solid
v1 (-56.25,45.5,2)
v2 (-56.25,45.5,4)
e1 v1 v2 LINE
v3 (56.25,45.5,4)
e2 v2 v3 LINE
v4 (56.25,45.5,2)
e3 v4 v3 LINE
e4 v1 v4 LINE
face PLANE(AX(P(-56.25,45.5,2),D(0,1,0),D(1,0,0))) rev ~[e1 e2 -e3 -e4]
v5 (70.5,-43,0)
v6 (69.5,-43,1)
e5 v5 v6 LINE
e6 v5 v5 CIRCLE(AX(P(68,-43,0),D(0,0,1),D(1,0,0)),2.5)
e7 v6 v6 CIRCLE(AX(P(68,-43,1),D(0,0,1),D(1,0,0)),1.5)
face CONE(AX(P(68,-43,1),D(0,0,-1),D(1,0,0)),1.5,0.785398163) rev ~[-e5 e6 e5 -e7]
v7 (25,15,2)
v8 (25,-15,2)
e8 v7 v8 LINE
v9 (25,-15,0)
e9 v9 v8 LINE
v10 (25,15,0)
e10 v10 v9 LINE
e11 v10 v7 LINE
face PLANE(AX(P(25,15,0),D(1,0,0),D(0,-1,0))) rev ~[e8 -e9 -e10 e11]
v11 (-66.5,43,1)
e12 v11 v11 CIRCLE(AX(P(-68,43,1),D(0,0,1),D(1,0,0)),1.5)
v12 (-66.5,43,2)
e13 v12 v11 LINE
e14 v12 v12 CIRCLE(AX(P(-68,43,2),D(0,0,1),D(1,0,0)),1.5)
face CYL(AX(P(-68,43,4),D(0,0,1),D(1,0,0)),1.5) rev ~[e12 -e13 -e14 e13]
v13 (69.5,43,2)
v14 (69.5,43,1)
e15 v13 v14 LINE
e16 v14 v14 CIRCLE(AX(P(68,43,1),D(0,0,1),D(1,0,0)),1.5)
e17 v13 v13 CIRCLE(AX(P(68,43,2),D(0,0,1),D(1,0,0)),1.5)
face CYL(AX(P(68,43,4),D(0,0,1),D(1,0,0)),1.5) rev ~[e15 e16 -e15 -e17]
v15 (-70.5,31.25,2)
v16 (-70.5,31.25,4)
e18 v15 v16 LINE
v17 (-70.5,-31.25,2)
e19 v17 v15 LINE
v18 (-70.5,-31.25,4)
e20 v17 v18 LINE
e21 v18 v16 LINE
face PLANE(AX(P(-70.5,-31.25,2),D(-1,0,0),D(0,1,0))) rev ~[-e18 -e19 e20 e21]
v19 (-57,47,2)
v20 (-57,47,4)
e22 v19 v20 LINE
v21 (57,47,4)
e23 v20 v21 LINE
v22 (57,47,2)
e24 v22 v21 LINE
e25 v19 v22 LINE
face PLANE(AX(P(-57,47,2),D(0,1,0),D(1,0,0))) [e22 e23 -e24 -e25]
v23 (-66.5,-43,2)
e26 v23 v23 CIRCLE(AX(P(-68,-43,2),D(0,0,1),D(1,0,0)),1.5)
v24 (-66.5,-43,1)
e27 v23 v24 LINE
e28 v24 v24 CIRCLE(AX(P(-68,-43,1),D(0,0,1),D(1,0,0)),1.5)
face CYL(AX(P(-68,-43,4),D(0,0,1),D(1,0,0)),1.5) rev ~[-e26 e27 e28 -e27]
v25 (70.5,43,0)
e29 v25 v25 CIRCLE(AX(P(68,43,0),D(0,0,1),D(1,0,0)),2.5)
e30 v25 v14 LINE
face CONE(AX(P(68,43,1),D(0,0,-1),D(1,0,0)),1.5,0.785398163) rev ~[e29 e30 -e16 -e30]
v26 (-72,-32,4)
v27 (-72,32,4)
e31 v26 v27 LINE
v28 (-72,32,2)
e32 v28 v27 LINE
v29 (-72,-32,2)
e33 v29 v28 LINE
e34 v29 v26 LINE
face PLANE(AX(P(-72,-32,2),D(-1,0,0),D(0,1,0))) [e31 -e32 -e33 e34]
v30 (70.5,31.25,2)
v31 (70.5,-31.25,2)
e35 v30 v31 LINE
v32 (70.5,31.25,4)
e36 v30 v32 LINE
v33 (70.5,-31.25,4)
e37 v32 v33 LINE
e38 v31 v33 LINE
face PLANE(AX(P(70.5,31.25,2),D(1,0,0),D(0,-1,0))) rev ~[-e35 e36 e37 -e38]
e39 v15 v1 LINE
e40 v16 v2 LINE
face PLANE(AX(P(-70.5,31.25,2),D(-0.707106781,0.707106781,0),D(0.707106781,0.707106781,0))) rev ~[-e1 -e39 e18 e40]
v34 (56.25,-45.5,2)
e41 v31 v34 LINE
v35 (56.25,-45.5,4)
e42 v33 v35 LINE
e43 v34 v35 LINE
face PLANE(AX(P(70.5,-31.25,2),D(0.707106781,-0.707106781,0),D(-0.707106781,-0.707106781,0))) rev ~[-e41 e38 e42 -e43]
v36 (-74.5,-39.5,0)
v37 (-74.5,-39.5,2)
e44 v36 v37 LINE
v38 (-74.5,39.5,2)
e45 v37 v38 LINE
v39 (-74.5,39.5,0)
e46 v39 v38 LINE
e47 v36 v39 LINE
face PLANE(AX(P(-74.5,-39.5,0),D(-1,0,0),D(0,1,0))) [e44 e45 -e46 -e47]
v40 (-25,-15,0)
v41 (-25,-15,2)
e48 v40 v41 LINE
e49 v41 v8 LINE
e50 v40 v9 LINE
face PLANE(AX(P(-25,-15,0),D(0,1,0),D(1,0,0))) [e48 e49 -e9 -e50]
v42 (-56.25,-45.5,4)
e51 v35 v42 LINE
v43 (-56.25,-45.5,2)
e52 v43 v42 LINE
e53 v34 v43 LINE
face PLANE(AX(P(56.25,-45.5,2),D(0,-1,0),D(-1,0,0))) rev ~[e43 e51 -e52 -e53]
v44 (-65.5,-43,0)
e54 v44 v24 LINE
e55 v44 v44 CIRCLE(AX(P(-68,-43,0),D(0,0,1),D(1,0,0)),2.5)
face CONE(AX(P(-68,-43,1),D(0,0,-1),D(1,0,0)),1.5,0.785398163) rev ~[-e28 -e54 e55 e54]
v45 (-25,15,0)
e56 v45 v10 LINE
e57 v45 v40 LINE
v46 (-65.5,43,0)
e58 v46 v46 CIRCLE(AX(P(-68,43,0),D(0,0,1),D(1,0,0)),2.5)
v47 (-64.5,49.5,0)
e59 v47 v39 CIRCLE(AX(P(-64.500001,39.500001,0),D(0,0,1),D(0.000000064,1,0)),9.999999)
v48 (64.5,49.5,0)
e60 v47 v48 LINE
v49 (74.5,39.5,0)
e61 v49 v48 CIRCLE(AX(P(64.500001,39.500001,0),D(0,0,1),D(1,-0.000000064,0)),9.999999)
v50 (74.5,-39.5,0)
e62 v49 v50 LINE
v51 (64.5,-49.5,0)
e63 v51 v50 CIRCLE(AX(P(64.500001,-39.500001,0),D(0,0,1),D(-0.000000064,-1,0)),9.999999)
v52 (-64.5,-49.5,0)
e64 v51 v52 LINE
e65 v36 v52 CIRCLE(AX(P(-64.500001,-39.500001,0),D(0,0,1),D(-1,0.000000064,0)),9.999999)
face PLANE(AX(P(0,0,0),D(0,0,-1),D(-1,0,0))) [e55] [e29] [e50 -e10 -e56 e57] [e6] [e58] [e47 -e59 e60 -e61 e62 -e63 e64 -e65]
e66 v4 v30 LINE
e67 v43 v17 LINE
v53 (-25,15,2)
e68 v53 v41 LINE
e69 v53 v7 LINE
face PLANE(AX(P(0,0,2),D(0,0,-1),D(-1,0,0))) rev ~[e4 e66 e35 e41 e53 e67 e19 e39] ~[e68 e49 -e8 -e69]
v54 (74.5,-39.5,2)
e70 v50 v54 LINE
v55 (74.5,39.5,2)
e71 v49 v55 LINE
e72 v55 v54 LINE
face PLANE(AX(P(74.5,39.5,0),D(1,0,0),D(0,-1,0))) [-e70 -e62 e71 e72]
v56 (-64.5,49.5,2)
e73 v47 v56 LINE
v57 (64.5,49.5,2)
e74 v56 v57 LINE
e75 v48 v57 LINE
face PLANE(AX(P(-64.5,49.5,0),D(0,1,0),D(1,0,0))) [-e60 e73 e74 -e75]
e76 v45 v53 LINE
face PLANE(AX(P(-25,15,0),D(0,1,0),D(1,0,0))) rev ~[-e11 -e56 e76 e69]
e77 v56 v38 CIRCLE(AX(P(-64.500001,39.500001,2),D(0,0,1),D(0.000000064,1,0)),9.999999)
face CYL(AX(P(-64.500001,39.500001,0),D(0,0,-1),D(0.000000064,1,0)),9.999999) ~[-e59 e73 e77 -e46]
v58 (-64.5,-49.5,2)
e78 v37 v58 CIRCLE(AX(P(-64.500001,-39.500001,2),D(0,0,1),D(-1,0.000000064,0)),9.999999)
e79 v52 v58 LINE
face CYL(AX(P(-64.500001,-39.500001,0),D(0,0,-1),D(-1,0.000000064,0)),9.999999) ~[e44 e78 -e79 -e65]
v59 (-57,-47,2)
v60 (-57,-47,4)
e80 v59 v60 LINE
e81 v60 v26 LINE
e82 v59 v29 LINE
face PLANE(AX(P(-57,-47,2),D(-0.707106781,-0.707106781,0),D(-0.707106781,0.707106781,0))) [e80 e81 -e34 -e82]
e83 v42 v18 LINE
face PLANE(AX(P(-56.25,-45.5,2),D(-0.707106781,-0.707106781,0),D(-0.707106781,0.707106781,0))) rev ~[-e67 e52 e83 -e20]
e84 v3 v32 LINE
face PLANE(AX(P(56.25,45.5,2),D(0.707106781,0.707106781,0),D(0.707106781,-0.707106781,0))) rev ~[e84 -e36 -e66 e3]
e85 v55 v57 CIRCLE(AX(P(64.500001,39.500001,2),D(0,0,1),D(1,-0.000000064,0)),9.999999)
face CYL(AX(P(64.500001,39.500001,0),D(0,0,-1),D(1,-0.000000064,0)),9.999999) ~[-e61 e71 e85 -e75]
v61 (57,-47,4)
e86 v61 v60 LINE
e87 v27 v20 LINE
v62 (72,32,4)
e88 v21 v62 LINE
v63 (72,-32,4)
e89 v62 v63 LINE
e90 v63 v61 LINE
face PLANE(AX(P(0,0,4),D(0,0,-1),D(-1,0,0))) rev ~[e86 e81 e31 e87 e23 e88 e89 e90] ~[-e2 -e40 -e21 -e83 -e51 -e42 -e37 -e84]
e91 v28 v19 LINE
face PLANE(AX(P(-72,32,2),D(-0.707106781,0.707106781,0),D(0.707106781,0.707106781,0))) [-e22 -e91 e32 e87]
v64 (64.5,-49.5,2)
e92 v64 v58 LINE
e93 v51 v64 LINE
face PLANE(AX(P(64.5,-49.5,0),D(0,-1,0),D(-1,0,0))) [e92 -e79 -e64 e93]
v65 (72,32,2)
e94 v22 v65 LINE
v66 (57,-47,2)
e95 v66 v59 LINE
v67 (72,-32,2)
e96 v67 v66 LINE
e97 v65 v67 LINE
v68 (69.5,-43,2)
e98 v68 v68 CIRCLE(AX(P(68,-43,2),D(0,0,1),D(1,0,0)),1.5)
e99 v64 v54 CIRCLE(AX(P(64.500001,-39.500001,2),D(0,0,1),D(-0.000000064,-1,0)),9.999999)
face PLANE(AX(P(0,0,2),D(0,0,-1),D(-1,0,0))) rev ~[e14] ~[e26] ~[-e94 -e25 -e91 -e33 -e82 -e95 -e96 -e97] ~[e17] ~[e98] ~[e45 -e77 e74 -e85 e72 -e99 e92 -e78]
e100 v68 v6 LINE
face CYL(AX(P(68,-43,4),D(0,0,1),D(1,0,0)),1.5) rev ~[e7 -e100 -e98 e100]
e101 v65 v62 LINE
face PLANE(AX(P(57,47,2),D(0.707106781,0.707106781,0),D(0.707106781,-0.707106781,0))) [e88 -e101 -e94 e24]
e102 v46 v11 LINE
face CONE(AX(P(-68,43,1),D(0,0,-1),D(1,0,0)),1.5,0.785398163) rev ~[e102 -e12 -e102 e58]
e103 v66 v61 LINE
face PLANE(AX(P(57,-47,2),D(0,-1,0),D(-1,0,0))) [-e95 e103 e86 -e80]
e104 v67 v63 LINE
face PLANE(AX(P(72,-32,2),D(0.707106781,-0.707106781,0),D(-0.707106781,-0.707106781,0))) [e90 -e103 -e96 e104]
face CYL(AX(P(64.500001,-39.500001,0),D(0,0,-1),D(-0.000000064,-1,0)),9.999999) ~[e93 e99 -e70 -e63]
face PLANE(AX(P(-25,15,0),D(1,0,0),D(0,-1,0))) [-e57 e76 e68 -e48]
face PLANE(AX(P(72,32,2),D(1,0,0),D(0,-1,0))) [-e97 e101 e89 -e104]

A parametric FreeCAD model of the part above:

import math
import FreeCAD as App
import Part
import Sketcher

V = App.Vector


def edges_at(feature, points):
    """Names of the edges that pass closest to the given points."""
    edges = feature.Shape.Edges
    near = lambda p: min(range(len(edges)), key=lambda i: edges[i].distToShape(Part.Vertex(*p))[0])
    return sorted({f"Edge{near(p) + 1}" for p in points})

doc = App.newDocument("Part")
params = doc.addObject("Spreadsheet::Sheet", "Params")
for row, (alias, value) in enumerate([
    ("sketch1_radius", "9.999999 mm"),
    ("sketch1_width", "129 mm"),
    ("sketch1_height", "79 mm"),
    ("pad1_length", "2 mm"),
    ("sketch2_diameter", "3 mm"),
    ("pocket1_length", "5 mm"),
    ("chamfer_size", "1 mm"),
    ("chamfer2_size", "1 mm"),
    ("chamfer3_size", "1 mm"),
    ("chamfer4_size", "1 mm"),
    ("sketch3_width", "50 mm"),
    ("sketch3_height", "30 mm"),
    ("pocket2_length", "5 mm"),
    ("sketch4_width", "114 mm"),
    ("sketch4_height", "64 mm"),
    ("sketch4_width2", "112.5 mm"),
    ("sketch4_height2", "62.5 mm"),
    ("pad2_length", "2 mm"),
], start=1):
    params.set(f"A{row}", alias)
    params.set(f"B{row}", "=" + value)
    params.setAlias(f"B{row}", alias)

body = doc.addObject("PartDesign::Body", "Body")

sketch1 = doc.addObject("Sketcher::SketchObject", "Sketch")
body.addObject(sketch1)
sketch1.AttachmentSupport = (doc.XY_Plane, [""])
sketch1.MapMode = "FlatFace"
sketch1.addGeometry(Part.LineSegment(V(64, 50, 0), V(-64, 50, 0)), False)
sketch1.addGeometry(Part.ArcOfCircle(Part.Circle(V(-65, 40, 0), V(0, 0, 1), 10), math.radians(90), math.radians(180)), False)
sketch1.addGeometry(Part.LineSegment(V(-74, 40, 0), V(-74, -40, 0)), False)
sketch1.addGeometry(Part.ArcOfCircle(Part.Circle(V(-65, -40, 0), V(0, 0, 1), 10), math.radians(180), math.radians(270)), False)
sketch1.addGeometry(Part.LineSegment(V(-64, -50, 0), V(64, -50, 0)), False)
sketch1.addGeometry(Part.ArcOfCircle(Part.Circle(V(65, -40, 0), V(0, 0, 1), 10), math.radians(-90), math.radians(0)), False)
sketch1.addGeometry(Part.LineSegment(V(74, -40, 0), V(74, 40, 0)), False)
sketch1.addGeometry(Part.ArcOfCircle(Part.Circle(V(65, 40, 0), V(0, 0, 1), 10), math.radians(0), math.radians(90)), False)
sketch1.addConstraint(Sketcher.Constraint("Tangent", 0, 2, 1, 1))
sketch1.addConstraint(Sketcher.Constraint("Tangent", 1, 2, 2, 1))
sketch1.addConstraint(Sketcher.Constraint("Tangent", 2, 2, 3, 1))
sketch1.addConstraint(Sketcher.Constraint("Tangent", 3, 2, 4, 1))
sketch1.addConstraint(Sketcher.Constraint("Tangent", 4, 2, 5, 1))
sketch1.addConstraint(Sketcher.Constraint("Tangent", 5, 2, 6, 1))
sketch1.addConstraint(Sketcher.Constraint("Tangent", 6, 2, 7, 1))
sketch1.addConstraint(Sketcher.Constraint("Tangent", 7, 2, 0, 1))
sketch1.addConstraint(Sketcher.Constraint("Horizontal", 0))
sketch1.addConstraint(Sketcher.Constraint("Vertical", 2))
sketch1.addConstraint(Sketcher.Constraint("Horizontal", 4))
sketch1.addConstraint(Sketcher.Constraint("Vertical", 6))
sketch1.addConstraint(Sketcher.Constraint("Equal", 1, 3))
sketch1.addConstraint(Sketcher.Constraint("Equal", 3, 5))
sketch1.addConstraint(Sketcher.Constraint("Equal", 5, 7))
sketch1.addConstraint(Sketcher.Constraint("Symmetric", 1, 3, 5, 3, -1, 1))
sketch1.addConstraint(Sketcher.Constraint("Radius", 1, 9.999999))
sketch1.addConstraint(Sketcher.Constraint("DistanceX", 0, 2, 0, 1, 129.0))
sketch1.addConstraint(Sketcher.Constraint("DistanceY", 2, 2, 2, 1, 79.0))
sketch1.setExpression("Constraints[16]", "Params.sketch1_radius")
sketch1.setExpression("Constraints[17]", "Params.sketch1_width")
sketch1.setExpression("Constraints[18]", "Params.sketch1_height")
pad1 = doc.addObject("PartDesign::Pad", "Pad")
body.addObject(pad1)
pad1.Profile = sketch1
pad1.setExpression("Length", "Params.pad1_length")

sketch2 = doc.addObject("Sketcher::SketchObject", "Sketch001")
body.addObject(sketch2)
sketch2.AttachmentSupport = (doc.XY_Plane, [""])
sketch2.MapMode = "FlatFace"
sketch2.AttachmentOffset = App.Placement(V(0, 0, 4), App.Rotation())
sketch2.addGeometry(Part.Circle(V(-68, 43, 0), V(0, 0, 1), 1.5), False)
sketch2.addGeometry(Part.Circle(V(-68, -43, 0), V(0, 0, 1), 1.5), False)
sketch2.addGeometry(Part.Circle(V(68, -43, 0), V(0, 0, 1), 1.5), False)
sketch2.addGeometry(Part.Circle(V(68, 43, 0), V(0, 0, 1), 1.5), False)
sketch2.addConstraint(Sketcher.Constraint("Equal", 0, 1))
sketch2.addConstraint(Sketcher.Constraint("Equal", 1, 2))
sketch2.addConstraint(Sketcher.Constraint("Equal", 2, 3))
sketch2.addConstraint(Sketcher.Constraint("Symmetric", 0, 3, 2, 3, -1, 1))
sketch2.addConstraint(Sketcher.Constraint("Symmetric", 1, 3, 3, 3, -1, 1))
sketch2.addConstraint(Sketcher.Constraint("Symmetric", 1, 3, 2, 3, -2))
sketch2.addConstraint(Sketcher.Constraint("Diameter", 0, 3.0))
sketch2.addConstraint(Sketcher.Constraint("DistanceX", 0, 3, -1, 1, 68.0))
sketch2.addConstraint(Sketcher.Constraint("DistanceY", -1, 1, 0, 3, 43.0))
sketch2.setExpression("Constraints[6]", "Params.sketch2_diameter")
pocket1 = doc.addObject("PartDesign::Pocket", "Pocket")
body.addObject(pocket1)
pocket1.Profile = sketch2
pocket1.setExpression("Length", "Params.pocket1_length")
doc.recompute()

chamfer = doc.addObject("PartDesign::Chamfer", "Chamfer")
body.addObject(chamfer)
chamfer.Base = (pocket1, edges_at(pocket1, [(-69.5, 43, 0)]))
chamfer.setExpression("Size", "Params.chamfer_size")
doc.recompute()

chamfer2 = doc.addObject("PartDesign::Chamfer", "Chamfer001")
body.addObject(chamfer2)
chamfer2.Base = (chamfer, edges_at(chamfer, [(-69.5, -43, 0)]))
chamfer2.setExpression("Size", "Params.chamfer2_size")
doc.recompute()

chamfer3 = doc.addObject("PartDesign::Chamfer", "Chamfer002")
body.addObject(chamfer3)
chamfer3.Base = (chamfer2, edges_at(chamfer2, [(66.5, -43, 0)]))
chamfer3.setExpression("Size", "Params.chamfer3_size")
doc.recompute()

chamfer4 = doc.addObject("PartDesign::Chamfer", "Chamfer003")
body.addObject(chamfer4)
chamfer4.Base = (chamfer3, edges_at(chamfer3, [(66.5, 43, 0)]))
chamfer4.setExpression("Size", "Params.chamfer4_size")

sketch3 = doc.addObject("Sketcher::SketchObject", "Sketch002")
body.addObject(sketch3)
sketch3.AttachmentSupport = (doc.XY_Plane, [""])
sketch3.MapMode = "FlatFace"
sketch3.addGeometry(Part.LineSegment(V(-25, -15, 0), V(-25, 15, 0)), False)
sketch3.addGeometry(Part.LineSegment(V(-25, 15, 0), V(25, 15, 0)), False)
sketch3.addGeometry(Part.LineSegment(V(25, 15, 0), V(25, -15, 0)), False)
sketch3.addGeometry(Part.LineSegment(V(25, -15, 0), V(-25, -15, 0)), False)
sketch3.addConstraint(Sketcher.Constraint("Coincident", 0, 2, 1, 1))
sketch3.addConstraint(Sketcher.Constraint("Coincident", 1, 2, 2, 1))
sketch3.addConstraint(Sketcher.Constraint("Coincident", 2, 2, 3, 1))
sketch3.addConstraint(Sketcher.Constraint("Coincident", 3, 2, 0, 1))
sketch3.addConstraint(Sketcher.Constraint("Vertical", 0))
sketch3.addConstraint(Sketcher.Constraint("Horizontal", 1))
sketch3.addConstraint(Sketcher.Constraint("Vertical", 2))
sketch3.addConstraint(Sketcher.Constraint("Horizontal", 3))
sketch3.addConstraint(Sketcher.Constraint("Symmetric", 0, 2, 2, 2, -1, 1))
sketch3.addConstraint(Sketcher.Constraint("DistanceX", 1, 1, 1, 2, 50.0))
sketch3.addConstraint(Sketcher.Constraint("DistanceY", 0, 1, 0, 2, 30.0))
sketch3.setExpression("Constraints[9]", "Params.sketch3_width")
sketch3.setExpression("Constraints[10]", "Params.sketch3_height")
pocket2 = doc.addObject("PartDesign::Pocket", "Pocket001")
body.addObject(pocket2)
pocket2.Profile = sketch3
pocket2.setExpression("Length", "Params.pocket2_length")
pocket2.Reversed = True

sketch4 = doc.addObject("Sketcher::SketchObject", "Sketch003")
body.addObject(sketch4)
sketch4.AttachmentSupport = (doc.XY_Plane, [""])
sketch4.MapMode = "FlatFace"
sketch4.AttachmentOffset = App.Placement(V(0, 0, 2), App.Rotation())
sketch4.addGeometry(Part.LineSegment(V(57, 47, 0), V(-57, 47, 0)), False)
sketch4.addGeometry(Part.LineSegment(V(-57, 47, 0), V(-72, 32, 0)), False)
sketch4.addGeometry(Part.LineSegment(V(-72, 32, 0), V(-72, -32, 0)), False)
sketch4.addGeometry(Part.LineSegment(V(-72, -32, 0), V(-57, -47, 0)), False)
sketch4.addGeometry(Part.LineSegment(V(-57, -47, 0), V(57, -47, 0)), False)
sketch4.addGeometry(Part.LineSegment(V(57, -47, 0), V(72, -32, 0)), False)
sketch4.addGeometry(Part.LineSegment(V(72, -32, 0), V(72, 32, 0)), False)
sketch4.addGeometry(Part.LineSegment(V(72, 32, 0), V(57, 47, 0)), False)
sketch4.addGeometry(Part.LineSegment(V(-70, 31, 0), V(-56, 46, 0)), False)
sketch4.addGeometry(Part.LineSegment(V(-56, 46, 0), V(56, 46, 0)), False)
sketch4.addGeometry(Part.LineSegment(V(56, 46, 0), V(70, 31, 0)), False)
sketch4.addGeometry(Part.LineSegment(V(70, 31, 0), V(70, -31, 0)), False)
sketch4.addGeometry(Part.LineSegment(V(70, -31, 0), V(56, -46, 0)), False)
sketch4.addGeometry(Part.LineSegment(V(56, -46, 0), V(-56, -46, 0)), False)
sketch4.addGeometry(Part.LineSegment(V(-56, -46, 0), V(-70, -31, 0)), False)
sketch4.addGeometry(Part.LineSegment(V(-70, -31, 0), V(-70, 31, 0)), False)
sketch4.addConstraint(Sketcher.Constraint("Coincident", 0, 2, 1, 1))
sketch4.addConstraint(Sketcher.Constraint("Coincident", 1, 2, 2, 1))
sketch4.addConstraint(Sketcher.Constraint("Coincident", 2, 2, 3, 1))
sketch4.addConstraint(Sketcher.Constraint("Coincident", 3, 2, 4, 1))
sketch4.addConstraint(Sketcher.Constraint("Coincident", 4, 2, 5, 1))
sketch4.addConstraint(Sketcher.Constraint("Coincident", 5, 2, 6, 1))
sketch4.addConstraint(Sketcher.Constraint("Coincident", 6, 2, 7, 1))
sketch4.addConstraint(Sketcher.Constraint("Coincident", 7, 2, 0, 1))
sketch4.addConstraint(Sketcher.Constraint("Coincident", 8, 2, 9, 1))
sketch4.addConstraint(Sketcher.Constraint("Coincident", 9, 2, 10, 1))
sketch4.addConstraint(Sketcher.Constraint("Coincident", 10, 2, 11, 1))
sketch4.addConstraint(Sketcher.Constraint("Coincident", 11, 2, 12, 1))
sketch4.addConstraint(Sketcher.Constraint("Coincident", 12, 2, 13, 1))
sketch4.addConstraint(Sketcher.Constraint("Coincident", 13, 2, 14, 1))
sketch4.addConstraint(Sketcher.Constraint("Coincident", 14, 2, 15, 1))
sketch4.addConstraint(Sketcher.Constraint("Coincident", 15, 2, 8, 1))
sketch4.addConstraint(Sketcher.Constraint("Horizontal", 0))
sketch4.addConstraint(Sketcher.Constraint("Vertical", 2))
sketch4.addConstraint(Sketcher.Constraint("Horizontal", 4))
sketch4.addConstraint(Sketcher.Constraint("Vertical", 6))
sketch4.addConstraint(Sketcher.Constraint("Horizontal", 9))
sketch4.addConstraint(Sketcher.Constraint("Vertical", 11))
sketch4.addConstraint(Sketcher.Constraint("Horizontal", 13))
sketch4.addConstraint(Sketcher.Constraint("Vertical", 15))
sketch4.addConstraint(Sketcher.Constraint("Symmetric", 0, 2, 4, 2, -1, 1))
sketch4.addConstraint(Sketcher.Constraint("Symmetric", 1, 2, 5, 2, -1, 1))
sketch4.addConstraint(Sketcher.Constraint("Symmetric", 8, 2, 12, 2, -1, 1))
sketch4.addConstraint(Sketcher.Constraint("Symmetric", 10, 2, 14, 2, -1, 1))
sketch4.addConstraint(Sketcher.Constraint("Perpendicular", 1, 3))
sketch4.addConstraint(Sketcher.Constraint("Perpendicular", 5, 7))
sketch4.addConstraint(Sketcher.Constraint("Perpendicular", 7, 8))
sketch4.addConstraint(Sketcher.Constraint("Perpendicular", 8, 10))
sketch4.addConstraint(Sketcher.Constraint("Perpendicular", 10, 12))
sketch4.addConstraint(Sketcher.Constraint("Perpendicular", 12, 14))
sketch4.addConstraint(Sketcher.Constraint("Horizontal", 2, 2, 5, 2))
sketch4.addConstraint(Sketcher.Constraint("Horizontal", 1, 2, 6, 2))
sketch4.addConstraint(Sketcher.Constraint("Horizontal", 11, 2, 14, 2))
sketch4.addConstraint(Sketcher.Constraint("Vertical", 0, 2, 3, 2))
sketch4.addConstraint(Sketcher.Constraint("DistanceX", 0, 2, 0, 1, 114.0))
sketch4.addConstraint(Sketcher.Constraint("DistanceY", 2, 2, 2, 1, 64.0))
sketch4.addConstraint(Sketcher.Constraint("DistanceX", 9, 1, 9, 2, 112.5))
sketch4.addConstraint(Sketcher.Constraint("DistanceY", 11, 2, 11, 1, 62.5))
sketch4.addConstraint(Sketcher.Constraint("DistanceY", -1, 1, 0, 2, 47.0))
sketch4.addConstraint(Sketcher.Constraint("DistanceY", 13, 2, 8, 2, 91.0))
sketch4.setExpression("Constraints[38]", "Params.sketch4_width")
sketch4.setExpression("Constraints[39]", "Params.sketch4_height")
sketch4.setExpression("Constraints[40]", "Params.sketch4_width2")
sketch4.setExpression("Constraints[41]", "Params.sketch4_height2")
pad2 = doc.addObject("PartDesign::Pad", "Pad001")
body.addObject(pad2)
pad2.Profile = sketch4
pad2.setExpression("Length", "Params.pad2_length")

doc.recompute()
